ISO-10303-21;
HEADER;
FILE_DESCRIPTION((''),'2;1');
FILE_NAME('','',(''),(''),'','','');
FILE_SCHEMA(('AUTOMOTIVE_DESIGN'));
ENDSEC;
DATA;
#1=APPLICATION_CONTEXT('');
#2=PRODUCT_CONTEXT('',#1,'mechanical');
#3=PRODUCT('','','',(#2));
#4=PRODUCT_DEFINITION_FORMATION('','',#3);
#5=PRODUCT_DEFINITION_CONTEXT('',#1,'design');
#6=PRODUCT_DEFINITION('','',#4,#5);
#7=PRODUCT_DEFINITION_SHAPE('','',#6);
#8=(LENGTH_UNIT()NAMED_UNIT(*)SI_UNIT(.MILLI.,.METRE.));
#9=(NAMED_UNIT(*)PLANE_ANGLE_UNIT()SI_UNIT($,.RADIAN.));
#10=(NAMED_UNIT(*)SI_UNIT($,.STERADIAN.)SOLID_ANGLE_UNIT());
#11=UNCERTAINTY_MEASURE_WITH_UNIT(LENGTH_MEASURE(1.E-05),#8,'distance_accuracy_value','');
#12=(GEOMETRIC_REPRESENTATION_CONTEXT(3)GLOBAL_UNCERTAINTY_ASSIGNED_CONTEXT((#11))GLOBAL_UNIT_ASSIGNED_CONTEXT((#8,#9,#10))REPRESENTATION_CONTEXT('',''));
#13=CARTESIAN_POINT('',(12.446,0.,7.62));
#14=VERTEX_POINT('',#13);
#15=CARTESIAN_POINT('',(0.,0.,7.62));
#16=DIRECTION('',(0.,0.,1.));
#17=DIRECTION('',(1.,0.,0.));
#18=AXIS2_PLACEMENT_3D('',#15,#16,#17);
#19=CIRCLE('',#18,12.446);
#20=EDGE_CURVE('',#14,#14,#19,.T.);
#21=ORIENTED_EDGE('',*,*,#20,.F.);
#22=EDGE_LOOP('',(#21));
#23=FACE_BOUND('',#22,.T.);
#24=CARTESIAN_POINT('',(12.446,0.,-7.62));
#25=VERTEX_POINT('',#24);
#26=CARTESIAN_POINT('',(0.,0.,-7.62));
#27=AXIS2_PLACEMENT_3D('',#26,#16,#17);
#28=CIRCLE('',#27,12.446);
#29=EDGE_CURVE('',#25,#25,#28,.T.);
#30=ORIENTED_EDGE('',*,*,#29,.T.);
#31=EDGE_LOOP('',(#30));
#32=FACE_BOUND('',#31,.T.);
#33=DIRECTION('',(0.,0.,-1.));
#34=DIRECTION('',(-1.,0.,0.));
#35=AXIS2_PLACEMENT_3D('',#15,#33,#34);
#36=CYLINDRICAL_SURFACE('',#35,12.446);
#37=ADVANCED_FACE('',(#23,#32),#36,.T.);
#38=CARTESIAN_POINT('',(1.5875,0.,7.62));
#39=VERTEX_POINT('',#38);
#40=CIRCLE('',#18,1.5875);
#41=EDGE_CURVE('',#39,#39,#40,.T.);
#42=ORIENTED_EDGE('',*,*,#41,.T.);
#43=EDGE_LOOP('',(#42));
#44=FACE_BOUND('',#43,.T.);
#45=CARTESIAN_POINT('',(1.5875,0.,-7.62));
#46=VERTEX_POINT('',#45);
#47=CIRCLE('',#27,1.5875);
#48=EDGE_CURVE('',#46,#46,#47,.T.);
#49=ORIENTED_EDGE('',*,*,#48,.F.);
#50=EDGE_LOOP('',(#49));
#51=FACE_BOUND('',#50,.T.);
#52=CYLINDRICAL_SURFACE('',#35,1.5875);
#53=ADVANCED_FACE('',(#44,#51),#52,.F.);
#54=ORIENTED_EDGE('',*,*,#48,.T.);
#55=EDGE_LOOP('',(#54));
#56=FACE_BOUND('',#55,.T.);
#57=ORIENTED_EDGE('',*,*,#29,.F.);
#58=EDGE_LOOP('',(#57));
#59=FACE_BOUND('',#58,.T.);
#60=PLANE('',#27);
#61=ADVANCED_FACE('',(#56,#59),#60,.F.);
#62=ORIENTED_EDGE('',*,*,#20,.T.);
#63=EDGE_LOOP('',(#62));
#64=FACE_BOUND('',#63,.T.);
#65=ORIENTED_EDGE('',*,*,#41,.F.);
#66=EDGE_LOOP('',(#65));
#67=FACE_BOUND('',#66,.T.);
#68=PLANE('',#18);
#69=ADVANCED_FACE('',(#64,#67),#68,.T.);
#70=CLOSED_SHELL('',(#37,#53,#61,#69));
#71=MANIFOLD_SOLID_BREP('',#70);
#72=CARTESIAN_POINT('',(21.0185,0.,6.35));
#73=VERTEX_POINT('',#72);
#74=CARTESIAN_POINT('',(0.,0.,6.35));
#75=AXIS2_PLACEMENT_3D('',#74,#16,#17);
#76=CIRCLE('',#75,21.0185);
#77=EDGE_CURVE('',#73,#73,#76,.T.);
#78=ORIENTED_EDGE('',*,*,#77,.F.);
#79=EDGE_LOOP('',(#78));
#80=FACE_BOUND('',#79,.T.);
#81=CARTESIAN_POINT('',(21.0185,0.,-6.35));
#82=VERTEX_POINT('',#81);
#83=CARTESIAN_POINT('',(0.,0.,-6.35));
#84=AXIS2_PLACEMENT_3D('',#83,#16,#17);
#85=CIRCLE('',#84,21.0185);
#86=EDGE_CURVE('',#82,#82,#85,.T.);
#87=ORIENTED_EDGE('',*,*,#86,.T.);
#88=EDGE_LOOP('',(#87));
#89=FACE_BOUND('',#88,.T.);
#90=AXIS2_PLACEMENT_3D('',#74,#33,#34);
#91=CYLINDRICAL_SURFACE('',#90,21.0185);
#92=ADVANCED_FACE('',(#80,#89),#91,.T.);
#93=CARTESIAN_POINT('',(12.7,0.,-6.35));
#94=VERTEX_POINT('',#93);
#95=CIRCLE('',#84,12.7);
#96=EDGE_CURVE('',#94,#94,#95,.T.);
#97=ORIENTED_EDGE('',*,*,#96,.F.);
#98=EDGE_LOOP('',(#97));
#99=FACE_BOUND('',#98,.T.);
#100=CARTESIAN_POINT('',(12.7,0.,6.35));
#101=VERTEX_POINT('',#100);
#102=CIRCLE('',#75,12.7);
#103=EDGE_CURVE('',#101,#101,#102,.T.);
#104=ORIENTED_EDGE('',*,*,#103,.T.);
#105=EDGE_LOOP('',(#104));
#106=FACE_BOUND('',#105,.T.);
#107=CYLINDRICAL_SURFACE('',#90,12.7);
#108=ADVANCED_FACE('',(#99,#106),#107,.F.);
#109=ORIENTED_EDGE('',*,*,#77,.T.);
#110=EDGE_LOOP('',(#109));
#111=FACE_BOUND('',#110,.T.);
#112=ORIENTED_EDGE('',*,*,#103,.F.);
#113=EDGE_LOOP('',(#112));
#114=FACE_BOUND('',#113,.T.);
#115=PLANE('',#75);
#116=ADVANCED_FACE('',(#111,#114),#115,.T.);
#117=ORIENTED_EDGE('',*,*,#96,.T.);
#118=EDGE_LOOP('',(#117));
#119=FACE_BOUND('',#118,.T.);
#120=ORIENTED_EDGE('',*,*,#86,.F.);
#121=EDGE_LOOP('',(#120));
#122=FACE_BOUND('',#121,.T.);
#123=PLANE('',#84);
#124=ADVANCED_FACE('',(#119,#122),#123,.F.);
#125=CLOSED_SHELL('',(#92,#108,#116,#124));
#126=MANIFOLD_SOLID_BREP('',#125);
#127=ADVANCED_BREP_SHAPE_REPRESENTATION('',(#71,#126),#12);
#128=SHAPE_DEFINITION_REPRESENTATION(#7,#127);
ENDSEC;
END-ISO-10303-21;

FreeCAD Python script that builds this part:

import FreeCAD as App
import Part
import Sketcher
Q = App.Units.Quantity

doc = App.newDocument("Part")
body = doc.addObject("PartDesign::Body", "Body")

sketch1 = body.newObject("Sketcher::SketchObject", "Sketch")
sketch1.AttachmentSupport = (doc.getObject("XY_Plane"), [""])
sketch1.MapMode = "FlatFace"
sketch1.addGeometry([
    Part.Circle(App.Vector(0, 0, 0), App.Vector(0, 0, 1), 12.446),
    Part.Circle(App.Vector(0, 0, 0), App.Vector(0, 0, 1), 1.5875),
], False)
sketch1.addConstraint([
    Sketcher.Constraint("Coincident", 0, 3, -1, 1),
    Sketcher.Constraint("Coincident", 1, 3, -1, 1),
    Sketcher.Constraint("Diameter", 0, Q("0.98 in")),
    Sketcher.Constraint("Diameter", 1, Q("0.125 in")),
])
pad1 = body.newObject("PartDesign::Pad", "Pad")
pad1.Profile = sketch1
pad1.Length = Q("0.6 in")
pad1.Midplane = True
body2 = doc.addObject("PartDesign::Body", "Body001")

sketch2 = body2.newObject("Sketcher::SketchObject", "Sketch001")
sketch2.AttachmentSupport = (doc.getObject("XY_Plane001"), [""])
sketch2.MapMode = "FlatFace"
sketch2.addGeometry([
    Part.Circle(App.Vector(0, 0, 0), App.Vector(0, 0, 1), 21.0185),
    Part.Circle(App.Vector(0, 0, 0), App.Vector(0, 0, 1), 12.7),
], False)
sketch2.addConstraint([
    Sketcher.Constraint("Coincident", 0, 3, -1, 1),
    Sketcher.Constraint("Coincident", 1, 3, -1, 1),
    Sketcher.Constraint("Diameter", 1, Q("1 in")),
    Sketcher.Constraint("Diameter", 0, Q("1.655 in")),
])
pad2 = body2.newObject("PartDesign::Pad", "Pad001")
pad2.Profile = sketch2
pad2.Length = Q("0.5 in")
pad2.Midplane = True

doc.recompute()
